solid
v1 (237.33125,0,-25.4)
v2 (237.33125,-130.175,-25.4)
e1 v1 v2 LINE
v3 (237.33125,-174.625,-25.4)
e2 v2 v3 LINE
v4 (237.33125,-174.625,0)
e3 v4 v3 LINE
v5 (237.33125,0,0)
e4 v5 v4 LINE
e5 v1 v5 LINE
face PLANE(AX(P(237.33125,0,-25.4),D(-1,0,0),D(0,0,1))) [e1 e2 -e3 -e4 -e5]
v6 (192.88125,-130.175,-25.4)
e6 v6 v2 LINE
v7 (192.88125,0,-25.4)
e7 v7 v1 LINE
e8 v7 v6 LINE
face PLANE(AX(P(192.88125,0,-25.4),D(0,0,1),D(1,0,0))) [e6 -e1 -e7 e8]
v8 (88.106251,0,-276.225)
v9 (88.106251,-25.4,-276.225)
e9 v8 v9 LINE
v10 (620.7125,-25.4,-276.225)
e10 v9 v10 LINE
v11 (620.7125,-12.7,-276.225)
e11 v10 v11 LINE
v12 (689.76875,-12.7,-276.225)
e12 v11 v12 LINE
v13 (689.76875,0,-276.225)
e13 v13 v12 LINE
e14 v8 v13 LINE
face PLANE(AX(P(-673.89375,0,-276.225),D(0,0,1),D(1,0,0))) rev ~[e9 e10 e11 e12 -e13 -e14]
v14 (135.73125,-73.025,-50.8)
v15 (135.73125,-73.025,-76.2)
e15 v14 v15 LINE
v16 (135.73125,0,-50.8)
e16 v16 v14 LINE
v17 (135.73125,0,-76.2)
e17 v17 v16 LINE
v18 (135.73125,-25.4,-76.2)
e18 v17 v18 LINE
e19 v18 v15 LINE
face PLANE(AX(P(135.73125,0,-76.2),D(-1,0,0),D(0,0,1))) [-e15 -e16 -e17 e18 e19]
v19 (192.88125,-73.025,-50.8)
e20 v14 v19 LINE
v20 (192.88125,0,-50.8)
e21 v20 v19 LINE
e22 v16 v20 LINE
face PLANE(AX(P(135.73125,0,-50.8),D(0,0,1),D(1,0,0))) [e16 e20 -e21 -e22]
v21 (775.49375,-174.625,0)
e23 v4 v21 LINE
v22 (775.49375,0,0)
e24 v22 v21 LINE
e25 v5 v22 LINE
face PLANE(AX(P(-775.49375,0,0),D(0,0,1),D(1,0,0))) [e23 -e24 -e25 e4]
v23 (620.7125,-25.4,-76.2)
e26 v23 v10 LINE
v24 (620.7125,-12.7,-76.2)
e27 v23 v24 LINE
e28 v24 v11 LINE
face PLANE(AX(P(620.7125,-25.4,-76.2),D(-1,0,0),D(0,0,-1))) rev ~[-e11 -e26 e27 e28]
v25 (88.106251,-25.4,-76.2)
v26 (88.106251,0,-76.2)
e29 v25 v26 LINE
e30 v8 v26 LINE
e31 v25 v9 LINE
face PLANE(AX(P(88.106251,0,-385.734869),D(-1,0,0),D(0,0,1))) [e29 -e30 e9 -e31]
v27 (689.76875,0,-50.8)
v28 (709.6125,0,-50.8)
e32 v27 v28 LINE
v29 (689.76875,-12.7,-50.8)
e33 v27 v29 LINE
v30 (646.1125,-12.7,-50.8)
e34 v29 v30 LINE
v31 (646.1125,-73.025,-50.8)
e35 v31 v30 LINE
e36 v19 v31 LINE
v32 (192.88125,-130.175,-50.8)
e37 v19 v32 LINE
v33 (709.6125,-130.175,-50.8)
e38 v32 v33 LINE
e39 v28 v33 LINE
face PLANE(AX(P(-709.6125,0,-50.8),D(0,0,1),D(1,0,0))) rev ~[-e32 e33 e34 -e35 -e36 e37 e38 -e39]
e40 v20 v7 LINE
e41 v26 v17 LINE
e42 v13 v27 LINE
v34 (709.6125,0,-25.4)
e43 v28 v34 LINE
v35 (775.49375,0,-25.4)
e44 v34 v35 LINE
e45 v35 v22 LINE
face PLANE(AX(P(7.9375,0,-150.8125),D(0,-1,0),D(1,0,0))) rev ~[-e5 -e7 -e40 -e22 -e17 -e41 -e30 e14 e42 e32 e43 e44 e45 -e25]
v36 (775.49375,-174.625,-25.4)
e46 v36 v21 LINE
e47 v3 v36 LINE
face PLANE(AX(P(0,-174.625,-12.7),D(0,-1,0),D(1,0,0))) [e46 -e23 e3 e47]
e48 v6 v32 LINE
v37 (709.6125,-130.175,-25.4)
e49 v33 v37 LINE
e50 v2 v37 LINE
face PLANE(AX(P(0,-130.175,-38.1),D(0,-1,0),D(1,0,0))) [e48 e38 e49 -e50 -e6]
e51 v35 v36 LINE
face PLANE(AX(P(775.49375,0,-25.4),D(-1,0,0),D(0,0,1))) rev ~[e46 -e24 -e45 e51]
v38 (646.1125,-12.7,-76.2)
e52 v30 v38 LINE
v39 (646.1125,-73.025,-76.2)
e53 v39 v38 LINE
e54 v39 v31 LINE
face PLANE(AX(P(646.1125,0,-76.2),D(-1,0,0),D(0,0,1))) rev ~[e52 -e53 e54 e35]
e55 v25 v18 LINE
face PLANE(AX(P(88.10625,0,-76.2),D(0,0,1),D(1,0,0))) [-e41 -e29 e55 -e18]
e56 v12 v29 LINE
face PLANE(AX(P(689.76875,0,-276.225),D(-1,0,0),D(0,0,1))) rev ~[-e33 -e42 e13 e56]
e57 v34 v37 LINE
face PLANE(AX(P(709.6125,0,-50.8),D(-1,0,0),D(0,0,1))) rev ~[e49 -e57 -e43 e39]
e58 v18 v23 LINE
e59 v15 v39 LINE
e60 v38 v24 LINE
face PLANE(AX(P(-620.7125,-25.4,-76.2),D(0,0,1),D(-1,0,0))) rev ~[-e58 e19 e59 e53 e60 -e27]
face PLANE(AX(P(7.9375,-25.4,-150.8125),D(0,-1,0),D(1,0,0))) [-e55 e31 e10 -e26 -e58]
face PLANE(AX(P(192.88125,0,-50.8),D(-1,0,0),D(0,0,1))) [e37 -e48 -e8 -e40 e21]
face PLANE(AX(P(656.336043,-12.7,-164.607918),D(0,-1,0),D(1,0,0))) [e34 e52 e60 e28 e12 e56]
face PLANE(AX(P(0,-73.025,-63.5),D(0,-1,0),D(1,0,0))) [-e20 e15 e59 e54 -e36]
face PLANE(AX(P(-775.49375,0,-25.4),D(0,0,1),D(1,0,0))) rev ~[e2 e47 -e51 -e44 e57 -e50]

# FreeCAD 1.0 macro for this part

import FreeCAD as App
import Part
import Sketcher
Q = App.Units.Quantity

doc = App.newDocument("Part")
params = doc.addObject("Spreadsheet::Sheet", "Params")
for row, (alias, value) in enumerate([
    ("sketch1_height", "1 in"),
    ("sketch1_width", "61.0625 in"),
    ("pad1_length", "6.875 in"),
    ("sketch2_height", "1 in"),
    ("sketch2_width", "55.875 in"),
    ("pad2_length", "5.125 in"),
    ("sketch3_height", "1 in"),
    ("sketch3_width", "50.875 in"),
    ("pad3_length", "2.875 in"),
    ("sketch4_width", "53.6875 in"),
    ("sketch4_height", "9.875 in"),
    ("pad4_length", "1 in"),
    ("sketch5_width", "1 in"),
    ("sketch5_width2", "2.09375 in"),
    ("sketch5_width3", "2.71875 in"),
    ("sketch5_height", "8.875 in"),
    ("pocket1_length", "0.5 in"),
    ("sketch7_height", "1 in"),
    ("sketch7_width", "2.25 in"),
    ("sketch7_width2", "1.875 in"),
], start=1):
    params.set(f"A{row}", alias)
    params.set(f"B{row}", "=" + value)
    params.setAlias(f"B{row}", alias)

body = doc.addObject("PartDesign::Body", "Body")

# Sketch on XZ plane
sketch1 = doc.addObject("Sketcher::SketchObject", "Sketch")
body.addObject(sketch1)
sketch1.AttachmentSupport = (doc.XZ_Plane, [""])
sketch1.MapMode = "FlatFace"
sketch1.addGeometry([
    Part.LineSegment(App.Vector(-775, 0, 0), App.Vector(-775, -25, 0)),
    Part.LineSegment(App.Vector(-775, -25, 0), App.Vector(775, -25, 0)),
    Part.LineSegment(App.Vector(775, -25, 0), App.Vector(775, 0, 0)),
    Part.LineSegment(App.Vector(775, 0, 0), App.Vector(-775, 0, 0)),
], False)
sketch1.addConstraint([
    Sketcher.Constraint("Coincident", 0, 2, 1, 1),
    Sketcher.Constraint("Coincident", 1, 2, 2, 1),
    Sketcher.Constraint("Coincident", 2, 2, 3, 1),
    Sketcher.Constraint("Coincident", 3, 2, 0, 1),
    Sketcher.Constraint("Vertical", 0),
    Sketcher.Constraint("Horizontal", 1),
    Sketcher.Constraint("Vertical", 2),
    Sketcher.Constraint("Horizontal", 3),
    Sketcher.Constraint("Symmetric", 2, 2, 3, 2, -1, 1),
    Sketcher.Constraint("DistanceY", 0, 2, 0, 1, Q("1 in")),
    Sketcher.Constraint("DistanceX", 1, 1, 1, 2, Q("61.0625 in")),
])
sketch1.setExpression("Constraints[9]", "Params.sketch1_height")
sketch1.setExpression("Constraints[10]", "Params.sketch1_width")
pad1 = doc.addObject("PartDesign::Pad", "Pad")
body.addObject(pad1)
pad1.Profile = sketch1
pad1.setExpression("Length", "Params.pad1_length")

# Sketch on XZ plane
sketch2 = doc.addObject("Sketcher::SketchObject", "Sketch001")
body.addObject(sketch2)
sketch2.AttachmentSupport = (doc.XZ_Plane, [""])
sketch2.MapMode = "FlatFace"
sketch2.addGeometry([
    Part.LineSegment(App.Vector(-710, -25, 0), App.Vector(-710, -51, 0)),
    Part.LineSegment(App.Vector(-710, -51, 0), App.Vector(710, -51, 0)),
    Part.LineSegment(App.Vector(710, -51, 0), App.Vector(710, -25, 0)),
    Part.LineSegment(App.Vector(710, -25, 0), App.Vector(-710, -25, 0)),
], False)
sketch2.addConstraint([
    Sketcher.Constraint("Coincident", 0, 2, 1, 1),
    Sketcher.Constraint("Coincident", 1, 2, 2, 1),
    Sketcher.Constraint("Coincident", 2, 2, 3, 1),
    Sketcher.Constraint("Coincident", 3, 2, 0, 1),
    Sketcher.Constraint("Vertical", 0),
    Sketcher.Constraint("Horizontal", 1),
    Sketcher.Constraint("Vertical", 2),
    Sketcher.Constraint("Horizontal", 3),
    Sketcher.Constraint("DistanceY", 0, 2, 0, 1, Q("1 in")),
    Sketcher.Constraint("DistanceY", 0, 2, -1, 1, Q("2 in")),
    Sketcher.Constraint("DistanceX", 1, 1, 1, 2, Q("55.875 in")),
    Sketcher.Constraint("DistanceX", 0, 2, -1, 1, Q("27.9375 in")),
])
sketch2.setExpression("Constraints[8]", "Params.sketch2_height")
sketch2.setExpression("Constraints[10]", "Params.sketch2_width")
pad2 = doc.addObject("PartDesign::Pad", "Pad001")
body.addObject(pad2)
pad2.Profile = sketch2
pad2.setExpression("Length", "Params.pad2_length")

# Sketch on XZ plane
sketch3 = doc.addObject("Sketcher::SketchObject", "Sketch002")
body.addObject(sketch3)
sketch3.AttachmentSupport = (doc.XZ_Plane, [""])
sketch3.MapMode = "FlatFace"
sketch3.addGeometry([
    Part.LineSegment(App.Vector(-646, -51, 0), App.Vector(-646, -76, 0)),
    Part.LineSegment(App.Vector(-646, -76, 0), App.Vector(646, -76, 0)),
    Part.LineSegment(App.Vector(646, -76, 0), App.Vector(646, -51, 0)),
    Part.LineSegment(App.Vector(646, -51, 0), App.Vector(-646, -51, 0)),
], False)
sketch3.addConstraint([
    Sketcher.Constraint("Coincident", 0, 2, 1, 1),
    Sketcher.Constraint("Coincident", 1, 2, 2, 1),
    Sketcher.Constraint("Coincident", 2, 2, 3, 1),
    Sketcher.Constraint("Coincident", 3, 2, 0, 1),
    Sketcher.Constraint("Vertical", 0),
    Sketcher.Constraint("Horizontal", 1),
    Sketcher.Constraint("Vertical", 2),
    Sketcher.Constraint("Horizontal", 3),
    Sketcher.Constraint("DistanceY", 0, 2, 0, 1, Q("1 in")),
    Sketcher.Constraint("DistanceY", 0, 2, -1, 1, Q("3 in")),
    Sketcher.Constraint("DistanceX", 1, 1, 1, 2, Q("50.875 in")),
    Sketcher.Constraint("DistanceX", 0, 2, -1, 1, Q("25.4375 in")),
])
sketch3.setExpression("Constraints[8]", "Params.sketch3_height")
sketch3.setExpression("Constraints[10]", "Params.sketch3_width")
pad3 = doc.addObject("PartDesign::Pad", "Pad002")
body.addObject(pad3)
pad3.Profile = sketch3
pad3.setExpression("Length", "Params.pad3_length")

# Sketch on XZ plane
sketch4 = doc.addObject("Sketcher::SketchObject", "Sketch003")
body.addObject(sketch4)
sketch4.AttachmentSupport = (doc.XZ_Plane, [""])
sketch4.MapMode = "FlatFace"
sketch4.addGeometry([
    Part.LineSegment(App.Vector(-674, -25, 0), App.Vector(-674, -276, 0)),
    Part.LineSegment(App.Vector(-674, -276, 0), App.Vector(690, -276, 0)),
    Part.LineSegment(App.Vector(690, -276, 0), App.Vector(690, -25, 0)),
    Part.LineSegment(App.Vector(690, -25, 0), App.Vector(-674, -25, 0)),
], False)
sketch4.addConstraint([
    Sketcher.Constraint("Coincident", 0, 2, 1, 1),
    Sketcher.Constraint("Coincident", 1, 2, 2, 1),
    Sketcher.Constraint("Coincident", 2, 2, 3, 1),
    Sketcher.Constraint("Coincident", 3, 2, 0, 1),
    Sketcher.Constraint("Vertical", 0),
    Sketcher.Constraint("Horizontal", 1),
    Sketcher.Constraint("Vertical", 2),
    Sketcher.Constraint("Horizontal", 3),
    Sketcher.Constraint("DistanceY", 2, 2, -1, 1, Q("1 in")),
    Sketcher.Constraint("DistanceX", 1, 1, 1, 2, Q("53.6875 in")),
    Sketcher.Constraint("DistanceY", 0, 2, 0, 1, Q("9.875 in")),
    Sketcher.Constraint("DistanceX", 0, 2, -1, 1, Q("26.53125 in")),
])
sketch4.setExpression("Constraints[9]", "Params.sketch4_width")
sketch4.setExpression("Constraints[10]", "Params.sketch4_height")
pad4 = doc.addObject("PartDesign::Pad", "Pad003")
body.addObject(pad4)
pad4.Profile = sketch4
pad4.setExpression("Length", "Params.pad4_length")

# Sketch on XZ plane
sketch5 = doc.addObject("Sketcher::SketchObject", "Sketch004")
body.addObject(sketch5)
sketch5.AttachmentSupport = (doc.XZ_Plane, [""])
sketch5.MapMode = "FlatFace"
sketch5.AttachmentOffset = App.Placement(App.Vector(0, 0, 1 * 25.4), App.Rotation())
sketch5.addGeometry([
    Part.LineSegment(App.Vector(-674, -51, 0), App.Vector(-674, -276, 0)),  # 0
    Part.LineSegment(App.Vector(-674, -276, 0), App.Vector(-621, -276, 0)),  # 1
    Part.LineSegment(App.Vector(-621, -276, 0), App.Vector(-621, -76, 0)),  # 2
    Part.LineSegment(App.Vector(-621, -76, 0), App.Vector(-646, -76, 0)),  # 3
    Part.LineSegment(App.Vector(-646, -76, 0), App.Vector(-646, -51, 0)),  # 4
    Part.LineSegment(App.Vector(-646, -51, 0), App.Vector(-674, -51, 0)),  # 5
    Part.LineSegment(App.Vector(621, -76, 0), App.Vector(621, -276, 0)),  # 6
    Part.LineSegment(App.Vector(621, -276, 0), App.Vector(690, -276, 0)),  # 7
    Part.LineSegment(App.Vector(690, -276, 0), App.Vector(690, -51, 0)),  # 8
    Part.LineSegment(App.Vector(690, -51, 0), App.Vector(646, -51, 0)),  # 9
    Part.LineSegment(App.Vector(646, -51, 0), App.Vector(646, -76, 0)),  # 10
    Part.LineSegment(App.Vector(646, -76, 0), App.Vector(621, -76, 0)),  # 11
], False)
sketch5.addConstraint([
    Sketcher.Constraint("Coincident", 0, 2, 1, 1),
    Sketcher.Constraint("Coincident", 1, 2, 2, 1),
    Sketcher.Constraint("Coincident", 2, 2, 3, 1),
    Sketcher.Constraint("Coincident", 3, 2, 4, 1),
    Sketcher.Constraint("Coincident", 4, 2, 5, 1),
    Sketcher.Constraint("Coincident", 5, 2, 0, 1),
    Sketcher.Constraint("Coincident", 6, 2, 7, 1),
    Sketcher.Constraint("Coincident", 7, 2, 8, 1),
    Sketcher.Constraint("Coincident", 8, 2, 9, 1),
    Sketcher.Constraint("Coincident", 9, 2, 10, 1),
    Sketcher.Constraint("Coincident", 10, 2, 11, 1),
    Sketcher.Constraint("Coincident", 11, 2, 6, 1),
    Sketcher.Constraint("Vertical", 0),
    Sketcher.Constraint("Horizontal", 1),
    Sketcher.Constraint("Vertical", 2),
    Sketcher.Constraint("Horizontal", 3),
    Sketcher.Constraint("Vertical", 4),
    Sketcher.Constraint("Horizontal", 5),
    Sketcher.Constraint("Vertical", 6),
    Sketcher.Constraint("Horizontal", 7),
    Sketcher.Constraint("Vertical", 8),
    Sketcher.Constraint("Horizontal", 9),
    Sketcher.Constraint("Vertical", 10),
    Sketcher.Constraint("Horizontal", 11),
    Sketcher.Constraint("Symmetric", 1, 2, 6, 2, -2),
    Sketcher.Constraint("Symmetric", 4, 2, 9, 2, -2),
    Sketcher.Constraint("Horizontal", 3, 2, 10, 2),
    Sketcher.Constraint("Equal", 11, 4),
    Sketcher.Constraint("DistanceX", 3, 2, 3, 1, Q("1 in")),
    Sketcher.Constraint("DistanceY", 2, 2, -1, 1, Q("3 in")),
    Sketcher.Constraint("DistanceX", 1, 1, 1, 2, Q("2.09375 in")),
    Sketcher.Constraint("DistanceX", 7, 1, 7, 2, Q("2.71875 in")),
    Sketcher.Constraint("DistanceY", 0, 2, 0, 1, Q("8.875 in")),
    Sketcher.Constraint("DistanceX", 0, 2, -1, 1, Q("26.53125 in")),
])
sketch5.setExpression("Constraints[28]", "Params.sketch5_width")
sketch5.setExpression("Constraints[30]", "Params.sketch5_width2")
sketch5.setExpression("Constraints[31]", "Params.sketch5_width3")
sketch5.setExpression("Constraints[32]", "Params.sketch5_height")
pocket1 = doc.addObject("PartDesign::Pocket", "Pocket")
body.addObject(pocket1)
pocket1.Profile = sketch5
pocket1.setExpression("Length", "Params.pocket1_length")

# Sketch on XZ plane
sketch6 = doc.addObject("Sketcher::SketchObject", "Sketch005")
body.addObject(sketch6)
sketch6.AttachmentSupport = (doc.XZ_Plane, [""])
sketch6.MapMode = "FlatFace"
sketch6.addGeometry([
    Part.LineSegment(App.Vector(-849, 146, 0), App.Vector(-849, -386, 0)),
    Part.LineSegment(App.Vector(-849, -386, 0), App.Vector(88, -386, 0)),
    Part.LineSegment(App.Vector(88, -386, 0), App.Vector(88, 146, 0)),
    Part.LineSegment(App.Vector(88, 146, 0), App.Vector(-849, 146, 0)),
], False)
sketch6.addConstraint([
    Sketcher.Constraint("Coincident", 0, 2, 1, 1),
    Sketcher.Constraint("Coincident", 1, 2, 2, 1),
    Sketcher.Constraint("Coincident", 2, 2, 3, 1),
    Sketcher.Constraint("Coincident", 3, 2, 0, 1),
    Sketcher.Constraint("Vertical", 0),
    Sketcher.Constraint("Horizontal", 1),
    Sketcher.Constraint("Vertical", 2),
    Sketcher.Constraint("Horizontal", 3),
    Sketcher.Constraint("DistanceX", -1, 1, 1, 2, Q("3.46875 in")),
    Sketcher.Constraint("DistanceX", 1, 1, 1, 2, 936.912687),
    Sketcher.Constraint("DistanceY", 0, 2, 0, 1, 531.850287),
    Sketcher.Constraint("DistanceY", 0, 2, -1, 1, 385.734869),
])
pocket2 = doc.addObject("PartDesign::Pocket", "Pocket001")
body.addObject(pocket2)
pocket2.Profile = sketch6
pocket2.Type = "ThroughAll"
pocket2.Reversed = True

# Sketch on XZ plane
sketch7 = doc.addObject("Sketcher::SketchObject", "Sketch006")
body.addObject(sketch7)
sketch7.AttachmentSupport = (doc.XZ_Plane, [""])
sketch7.MapMode = "FlatFace"
sketch7.addGeometry([
    Part.LineSegment(App.Vector(237, -25, 0), App.Vector(237, 0, 0)),  # 0
    Part.LineSegment(App.Vector(237, 0, 0), App.Vector(148, 69, 0)),  # 1
    Part.LineSegment(App.Vector(148, 69, 0), App.Vector(-113, 31, 0)),  # 2
    Part.LineSegment(App.Vector(-113, 31, 0), App.Vector(39, -96, 0)),  # 3
    Part.LineSegment(App.Vector(39, -96, 0), App.Vector(88, -76, 0)),  # 4
    Part.LineSegment(App.Vector(88, -76, 0), App.Vector(136, -76, 0)),  # 5
    Part.LineSegment(App.Vector(136, -76, 0), App.Vector(136, -51, 0)),  # 6
    Part.LineSegment(App.Vector(136, -51, 0), App.Vector(193, -51, 0)),  # 7
    Part.LineSegment(App.Vector(193, -51, 0), App.Vector(193, -25, 0)),  # 8
    Part.LineSegment(App.Vector(193, -25, 0), App.Vector(237, -25, 0)),  # 9
], False)
sketch7.addConstraint([
    Sketcher.Constraint("Coincident", 0, 2, 1, 1),
    Sketcher.Constraint("Coincident", 1, 2, 2, 1),
    Sketcher.Constraint("Coincident", 2, 2, 3, 1),
    Sketcher.Constraint("Coincident", 3, 2, 4, 1),
    Sketcher.Constraint("Coincident", 4, 2, 5, 1),
    Sketcher.Constraint("Coincident", 5, 2, 6, 1),
    Sketcher.Constraint("Coincident", 6, 2, 7, 1),
    Sketcher.Constraint("Coincident", 7, 2, 8, 1),
    Sketcher.Constraint("Coincident", 8, 2, 9, 1),
    Sketcher.Constraint("Coincident", 9, 2, 0, 1),
    Sketcher.Constraint("Vertical", 0),
    Sketcher.Constraint("Horizontal", 5),
    Sketcher.Constraint("Vertical", 6),
    Sketcher.Constraint("Horizontal", 7),
    Sketcher.Constraint("Vertical", 8),
    Sketcher.Constraint("Horizontal", 9),
    Sketcher.Constraint("PointOnObject", 0, 2, -1),
    Sketcher.Constraint("Equal", 0, 6),
    Sketcher.Constraint("Equal", 6, 8),
    Sketcher.Constraint("DistanceY", 0, 1, 0, 2, Q("1 in")),
    Sketcher.Constraint("DistanceX", 5, 2, 0, 2, Q("4 in")),
    Sketcher.Constraint("DistanceX", 7, 1, 7, 2, Q("2.25 in")),
    Sketcher.Constraint("DistanceX", 5, 1, 5, 2, Q("1.875 in")),
    Sketcher.Constraint("DistanceX", -1, 1, 0, 2, Q("9.34375 in")),
    Sketcher.Constraint("Distance", 2, 263.635802),
    Sketcher.Constraint("DistanceX", 1, 2, 0, 2, 88.959002),
    Sketcher.Constraint("Distance", 4, 53.086128),
    Sketcher.Constraint("DistanceX", 2, 2, -1, 1, 112.537719),
    Sketcher.Constraint("DistanceX", -1, 1, 3, 2, 38.714431),
    Sketcher.Constraint("DistanceY", 3, 2, 1, 2, 164.486721),
])
sketch7.setExpression("Constraints[19]", "Params.sketch7_height")
sketch7.setExpression("Constraints[21]", "Params.sketch7_width")
sketch7.setExpression("Constraints[22]", "Params.sketch7_width2")
pocket3 = doc.addObject("PartDesign::Pocket", "Pocket002")
body.addObject(pocket3)
pocket3.Profile = sketch7
pocket3.Type = "ThroughAll"
pocket3.Reversed = True

doc.recompute()
